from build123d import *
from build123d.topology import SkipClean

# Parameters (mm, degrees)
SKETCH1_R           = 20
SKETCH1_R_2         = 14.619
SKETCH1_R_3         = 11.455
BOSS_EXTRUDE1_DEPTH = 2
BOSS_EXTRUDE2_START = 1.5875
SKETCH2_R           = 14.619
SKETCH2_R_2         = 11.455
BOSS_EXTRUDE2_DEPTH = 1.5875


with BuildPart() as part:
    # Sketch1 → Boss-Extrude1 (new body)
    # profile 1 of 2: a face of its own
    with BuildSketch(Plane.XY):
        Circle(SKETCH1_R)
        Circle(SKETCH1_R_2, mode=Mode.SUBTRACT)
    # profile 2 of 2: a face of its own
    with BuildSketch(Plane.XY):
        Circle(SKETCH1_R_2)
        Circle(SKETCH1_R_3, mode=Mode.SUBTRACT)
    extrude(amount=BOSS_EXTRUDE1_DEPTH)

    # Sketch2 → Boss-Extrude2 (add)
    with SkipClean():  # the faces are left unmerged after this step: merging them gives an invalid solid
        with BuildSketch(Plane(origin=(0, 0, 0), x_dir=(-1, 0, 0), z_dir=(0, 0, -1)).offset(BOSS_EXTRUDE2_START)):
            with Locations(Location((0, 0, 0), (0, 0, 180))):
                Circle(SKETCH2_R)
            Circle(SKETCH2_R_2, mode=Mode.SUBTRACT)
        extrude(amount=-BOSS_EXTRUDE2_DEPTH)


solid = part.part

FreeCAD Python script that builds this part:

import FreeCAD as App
import Part
import Sketcher
from FreeCAD import Vector
Q = App.Units.Quantity

doc = App.newDocument("Part")
body = doc.addObject("PartDesign::Body", "Body")

sketch1 = doc.addObject("Sketcher::SketchObject", "Sketch")
body.addObject(sketch1)
sketch1.AttachmentSupport = (doc.XY_Plane, [""])
sketch1.MapMode = "FlatFace"
sketch1.addGeometry(Part.Circle(Vector(0, 0, 0), Vector(0, 0, 1), 20), False)
sketch1.addGeometry(Part.Circle(Vector(0, 0, 0), Vector(0, 0, 1), 11), False)
sketch1.addConstraint(Sketcher.Constraint("Coincident", 0, 3, -1, 1))
sketch1.addConstraint(Sketcher.Constraint("Coincident", 1, 3, -1, 1))
sketch1.addConstraint(Sketcher.Constraint("Diameter", 0, Q("40 mm")))
sketch1.addConstraint(Sketcher.Constraint("Diameter", 1, Q("22.91 mm")))
pad1 = doc.addObject("PartDesign::Pad", "Pad")
body.addObject(pad1)
pad1.Profile = sketch1
pad1.Length = 2

sketch2 = doc.addObject("Sketcher::SketchObject", "Sketch001")
body.addObject(sketch2)
sketch2.AttachmentSupport = (doc.XY_Plane, [""])
sketch2.MapMode = "FlatFace"
sketch2.AttachmentOffset = App.Placement(Vector(0, 0, -1.5875), App.Rotation())
sketch2.addGeometry(Part.Circle(Vector(0, 0, 0), Vector(0, 0, 1), 15), False)
sketch2.addGeometry(Part.Circle(Vector(0, 0, 0), Vector(0, 0, 1), 11), False)
sketch2.addConstraint(Sketcher.Constraint("Coincident", 0, 3, -1, 1))
sketch2.addConstraint(Sketcher.Constraint("Coincident", 1, 3, -1, 1))
sketch2.addConstraint(Sketcher.Constraint("Diameter", 1, Q("22.91 mm")))
sketch2.addConstraint(Sketcher.Constraint("Diameter", 0, Q("29.238 mm")))
pad2 = doc.addObject("PartDesign::Pad", "Pad001")
body.addObject(pad2)
pad2.Profile = sketch2
pad2.Length = 1.5875

doc.recompute()
